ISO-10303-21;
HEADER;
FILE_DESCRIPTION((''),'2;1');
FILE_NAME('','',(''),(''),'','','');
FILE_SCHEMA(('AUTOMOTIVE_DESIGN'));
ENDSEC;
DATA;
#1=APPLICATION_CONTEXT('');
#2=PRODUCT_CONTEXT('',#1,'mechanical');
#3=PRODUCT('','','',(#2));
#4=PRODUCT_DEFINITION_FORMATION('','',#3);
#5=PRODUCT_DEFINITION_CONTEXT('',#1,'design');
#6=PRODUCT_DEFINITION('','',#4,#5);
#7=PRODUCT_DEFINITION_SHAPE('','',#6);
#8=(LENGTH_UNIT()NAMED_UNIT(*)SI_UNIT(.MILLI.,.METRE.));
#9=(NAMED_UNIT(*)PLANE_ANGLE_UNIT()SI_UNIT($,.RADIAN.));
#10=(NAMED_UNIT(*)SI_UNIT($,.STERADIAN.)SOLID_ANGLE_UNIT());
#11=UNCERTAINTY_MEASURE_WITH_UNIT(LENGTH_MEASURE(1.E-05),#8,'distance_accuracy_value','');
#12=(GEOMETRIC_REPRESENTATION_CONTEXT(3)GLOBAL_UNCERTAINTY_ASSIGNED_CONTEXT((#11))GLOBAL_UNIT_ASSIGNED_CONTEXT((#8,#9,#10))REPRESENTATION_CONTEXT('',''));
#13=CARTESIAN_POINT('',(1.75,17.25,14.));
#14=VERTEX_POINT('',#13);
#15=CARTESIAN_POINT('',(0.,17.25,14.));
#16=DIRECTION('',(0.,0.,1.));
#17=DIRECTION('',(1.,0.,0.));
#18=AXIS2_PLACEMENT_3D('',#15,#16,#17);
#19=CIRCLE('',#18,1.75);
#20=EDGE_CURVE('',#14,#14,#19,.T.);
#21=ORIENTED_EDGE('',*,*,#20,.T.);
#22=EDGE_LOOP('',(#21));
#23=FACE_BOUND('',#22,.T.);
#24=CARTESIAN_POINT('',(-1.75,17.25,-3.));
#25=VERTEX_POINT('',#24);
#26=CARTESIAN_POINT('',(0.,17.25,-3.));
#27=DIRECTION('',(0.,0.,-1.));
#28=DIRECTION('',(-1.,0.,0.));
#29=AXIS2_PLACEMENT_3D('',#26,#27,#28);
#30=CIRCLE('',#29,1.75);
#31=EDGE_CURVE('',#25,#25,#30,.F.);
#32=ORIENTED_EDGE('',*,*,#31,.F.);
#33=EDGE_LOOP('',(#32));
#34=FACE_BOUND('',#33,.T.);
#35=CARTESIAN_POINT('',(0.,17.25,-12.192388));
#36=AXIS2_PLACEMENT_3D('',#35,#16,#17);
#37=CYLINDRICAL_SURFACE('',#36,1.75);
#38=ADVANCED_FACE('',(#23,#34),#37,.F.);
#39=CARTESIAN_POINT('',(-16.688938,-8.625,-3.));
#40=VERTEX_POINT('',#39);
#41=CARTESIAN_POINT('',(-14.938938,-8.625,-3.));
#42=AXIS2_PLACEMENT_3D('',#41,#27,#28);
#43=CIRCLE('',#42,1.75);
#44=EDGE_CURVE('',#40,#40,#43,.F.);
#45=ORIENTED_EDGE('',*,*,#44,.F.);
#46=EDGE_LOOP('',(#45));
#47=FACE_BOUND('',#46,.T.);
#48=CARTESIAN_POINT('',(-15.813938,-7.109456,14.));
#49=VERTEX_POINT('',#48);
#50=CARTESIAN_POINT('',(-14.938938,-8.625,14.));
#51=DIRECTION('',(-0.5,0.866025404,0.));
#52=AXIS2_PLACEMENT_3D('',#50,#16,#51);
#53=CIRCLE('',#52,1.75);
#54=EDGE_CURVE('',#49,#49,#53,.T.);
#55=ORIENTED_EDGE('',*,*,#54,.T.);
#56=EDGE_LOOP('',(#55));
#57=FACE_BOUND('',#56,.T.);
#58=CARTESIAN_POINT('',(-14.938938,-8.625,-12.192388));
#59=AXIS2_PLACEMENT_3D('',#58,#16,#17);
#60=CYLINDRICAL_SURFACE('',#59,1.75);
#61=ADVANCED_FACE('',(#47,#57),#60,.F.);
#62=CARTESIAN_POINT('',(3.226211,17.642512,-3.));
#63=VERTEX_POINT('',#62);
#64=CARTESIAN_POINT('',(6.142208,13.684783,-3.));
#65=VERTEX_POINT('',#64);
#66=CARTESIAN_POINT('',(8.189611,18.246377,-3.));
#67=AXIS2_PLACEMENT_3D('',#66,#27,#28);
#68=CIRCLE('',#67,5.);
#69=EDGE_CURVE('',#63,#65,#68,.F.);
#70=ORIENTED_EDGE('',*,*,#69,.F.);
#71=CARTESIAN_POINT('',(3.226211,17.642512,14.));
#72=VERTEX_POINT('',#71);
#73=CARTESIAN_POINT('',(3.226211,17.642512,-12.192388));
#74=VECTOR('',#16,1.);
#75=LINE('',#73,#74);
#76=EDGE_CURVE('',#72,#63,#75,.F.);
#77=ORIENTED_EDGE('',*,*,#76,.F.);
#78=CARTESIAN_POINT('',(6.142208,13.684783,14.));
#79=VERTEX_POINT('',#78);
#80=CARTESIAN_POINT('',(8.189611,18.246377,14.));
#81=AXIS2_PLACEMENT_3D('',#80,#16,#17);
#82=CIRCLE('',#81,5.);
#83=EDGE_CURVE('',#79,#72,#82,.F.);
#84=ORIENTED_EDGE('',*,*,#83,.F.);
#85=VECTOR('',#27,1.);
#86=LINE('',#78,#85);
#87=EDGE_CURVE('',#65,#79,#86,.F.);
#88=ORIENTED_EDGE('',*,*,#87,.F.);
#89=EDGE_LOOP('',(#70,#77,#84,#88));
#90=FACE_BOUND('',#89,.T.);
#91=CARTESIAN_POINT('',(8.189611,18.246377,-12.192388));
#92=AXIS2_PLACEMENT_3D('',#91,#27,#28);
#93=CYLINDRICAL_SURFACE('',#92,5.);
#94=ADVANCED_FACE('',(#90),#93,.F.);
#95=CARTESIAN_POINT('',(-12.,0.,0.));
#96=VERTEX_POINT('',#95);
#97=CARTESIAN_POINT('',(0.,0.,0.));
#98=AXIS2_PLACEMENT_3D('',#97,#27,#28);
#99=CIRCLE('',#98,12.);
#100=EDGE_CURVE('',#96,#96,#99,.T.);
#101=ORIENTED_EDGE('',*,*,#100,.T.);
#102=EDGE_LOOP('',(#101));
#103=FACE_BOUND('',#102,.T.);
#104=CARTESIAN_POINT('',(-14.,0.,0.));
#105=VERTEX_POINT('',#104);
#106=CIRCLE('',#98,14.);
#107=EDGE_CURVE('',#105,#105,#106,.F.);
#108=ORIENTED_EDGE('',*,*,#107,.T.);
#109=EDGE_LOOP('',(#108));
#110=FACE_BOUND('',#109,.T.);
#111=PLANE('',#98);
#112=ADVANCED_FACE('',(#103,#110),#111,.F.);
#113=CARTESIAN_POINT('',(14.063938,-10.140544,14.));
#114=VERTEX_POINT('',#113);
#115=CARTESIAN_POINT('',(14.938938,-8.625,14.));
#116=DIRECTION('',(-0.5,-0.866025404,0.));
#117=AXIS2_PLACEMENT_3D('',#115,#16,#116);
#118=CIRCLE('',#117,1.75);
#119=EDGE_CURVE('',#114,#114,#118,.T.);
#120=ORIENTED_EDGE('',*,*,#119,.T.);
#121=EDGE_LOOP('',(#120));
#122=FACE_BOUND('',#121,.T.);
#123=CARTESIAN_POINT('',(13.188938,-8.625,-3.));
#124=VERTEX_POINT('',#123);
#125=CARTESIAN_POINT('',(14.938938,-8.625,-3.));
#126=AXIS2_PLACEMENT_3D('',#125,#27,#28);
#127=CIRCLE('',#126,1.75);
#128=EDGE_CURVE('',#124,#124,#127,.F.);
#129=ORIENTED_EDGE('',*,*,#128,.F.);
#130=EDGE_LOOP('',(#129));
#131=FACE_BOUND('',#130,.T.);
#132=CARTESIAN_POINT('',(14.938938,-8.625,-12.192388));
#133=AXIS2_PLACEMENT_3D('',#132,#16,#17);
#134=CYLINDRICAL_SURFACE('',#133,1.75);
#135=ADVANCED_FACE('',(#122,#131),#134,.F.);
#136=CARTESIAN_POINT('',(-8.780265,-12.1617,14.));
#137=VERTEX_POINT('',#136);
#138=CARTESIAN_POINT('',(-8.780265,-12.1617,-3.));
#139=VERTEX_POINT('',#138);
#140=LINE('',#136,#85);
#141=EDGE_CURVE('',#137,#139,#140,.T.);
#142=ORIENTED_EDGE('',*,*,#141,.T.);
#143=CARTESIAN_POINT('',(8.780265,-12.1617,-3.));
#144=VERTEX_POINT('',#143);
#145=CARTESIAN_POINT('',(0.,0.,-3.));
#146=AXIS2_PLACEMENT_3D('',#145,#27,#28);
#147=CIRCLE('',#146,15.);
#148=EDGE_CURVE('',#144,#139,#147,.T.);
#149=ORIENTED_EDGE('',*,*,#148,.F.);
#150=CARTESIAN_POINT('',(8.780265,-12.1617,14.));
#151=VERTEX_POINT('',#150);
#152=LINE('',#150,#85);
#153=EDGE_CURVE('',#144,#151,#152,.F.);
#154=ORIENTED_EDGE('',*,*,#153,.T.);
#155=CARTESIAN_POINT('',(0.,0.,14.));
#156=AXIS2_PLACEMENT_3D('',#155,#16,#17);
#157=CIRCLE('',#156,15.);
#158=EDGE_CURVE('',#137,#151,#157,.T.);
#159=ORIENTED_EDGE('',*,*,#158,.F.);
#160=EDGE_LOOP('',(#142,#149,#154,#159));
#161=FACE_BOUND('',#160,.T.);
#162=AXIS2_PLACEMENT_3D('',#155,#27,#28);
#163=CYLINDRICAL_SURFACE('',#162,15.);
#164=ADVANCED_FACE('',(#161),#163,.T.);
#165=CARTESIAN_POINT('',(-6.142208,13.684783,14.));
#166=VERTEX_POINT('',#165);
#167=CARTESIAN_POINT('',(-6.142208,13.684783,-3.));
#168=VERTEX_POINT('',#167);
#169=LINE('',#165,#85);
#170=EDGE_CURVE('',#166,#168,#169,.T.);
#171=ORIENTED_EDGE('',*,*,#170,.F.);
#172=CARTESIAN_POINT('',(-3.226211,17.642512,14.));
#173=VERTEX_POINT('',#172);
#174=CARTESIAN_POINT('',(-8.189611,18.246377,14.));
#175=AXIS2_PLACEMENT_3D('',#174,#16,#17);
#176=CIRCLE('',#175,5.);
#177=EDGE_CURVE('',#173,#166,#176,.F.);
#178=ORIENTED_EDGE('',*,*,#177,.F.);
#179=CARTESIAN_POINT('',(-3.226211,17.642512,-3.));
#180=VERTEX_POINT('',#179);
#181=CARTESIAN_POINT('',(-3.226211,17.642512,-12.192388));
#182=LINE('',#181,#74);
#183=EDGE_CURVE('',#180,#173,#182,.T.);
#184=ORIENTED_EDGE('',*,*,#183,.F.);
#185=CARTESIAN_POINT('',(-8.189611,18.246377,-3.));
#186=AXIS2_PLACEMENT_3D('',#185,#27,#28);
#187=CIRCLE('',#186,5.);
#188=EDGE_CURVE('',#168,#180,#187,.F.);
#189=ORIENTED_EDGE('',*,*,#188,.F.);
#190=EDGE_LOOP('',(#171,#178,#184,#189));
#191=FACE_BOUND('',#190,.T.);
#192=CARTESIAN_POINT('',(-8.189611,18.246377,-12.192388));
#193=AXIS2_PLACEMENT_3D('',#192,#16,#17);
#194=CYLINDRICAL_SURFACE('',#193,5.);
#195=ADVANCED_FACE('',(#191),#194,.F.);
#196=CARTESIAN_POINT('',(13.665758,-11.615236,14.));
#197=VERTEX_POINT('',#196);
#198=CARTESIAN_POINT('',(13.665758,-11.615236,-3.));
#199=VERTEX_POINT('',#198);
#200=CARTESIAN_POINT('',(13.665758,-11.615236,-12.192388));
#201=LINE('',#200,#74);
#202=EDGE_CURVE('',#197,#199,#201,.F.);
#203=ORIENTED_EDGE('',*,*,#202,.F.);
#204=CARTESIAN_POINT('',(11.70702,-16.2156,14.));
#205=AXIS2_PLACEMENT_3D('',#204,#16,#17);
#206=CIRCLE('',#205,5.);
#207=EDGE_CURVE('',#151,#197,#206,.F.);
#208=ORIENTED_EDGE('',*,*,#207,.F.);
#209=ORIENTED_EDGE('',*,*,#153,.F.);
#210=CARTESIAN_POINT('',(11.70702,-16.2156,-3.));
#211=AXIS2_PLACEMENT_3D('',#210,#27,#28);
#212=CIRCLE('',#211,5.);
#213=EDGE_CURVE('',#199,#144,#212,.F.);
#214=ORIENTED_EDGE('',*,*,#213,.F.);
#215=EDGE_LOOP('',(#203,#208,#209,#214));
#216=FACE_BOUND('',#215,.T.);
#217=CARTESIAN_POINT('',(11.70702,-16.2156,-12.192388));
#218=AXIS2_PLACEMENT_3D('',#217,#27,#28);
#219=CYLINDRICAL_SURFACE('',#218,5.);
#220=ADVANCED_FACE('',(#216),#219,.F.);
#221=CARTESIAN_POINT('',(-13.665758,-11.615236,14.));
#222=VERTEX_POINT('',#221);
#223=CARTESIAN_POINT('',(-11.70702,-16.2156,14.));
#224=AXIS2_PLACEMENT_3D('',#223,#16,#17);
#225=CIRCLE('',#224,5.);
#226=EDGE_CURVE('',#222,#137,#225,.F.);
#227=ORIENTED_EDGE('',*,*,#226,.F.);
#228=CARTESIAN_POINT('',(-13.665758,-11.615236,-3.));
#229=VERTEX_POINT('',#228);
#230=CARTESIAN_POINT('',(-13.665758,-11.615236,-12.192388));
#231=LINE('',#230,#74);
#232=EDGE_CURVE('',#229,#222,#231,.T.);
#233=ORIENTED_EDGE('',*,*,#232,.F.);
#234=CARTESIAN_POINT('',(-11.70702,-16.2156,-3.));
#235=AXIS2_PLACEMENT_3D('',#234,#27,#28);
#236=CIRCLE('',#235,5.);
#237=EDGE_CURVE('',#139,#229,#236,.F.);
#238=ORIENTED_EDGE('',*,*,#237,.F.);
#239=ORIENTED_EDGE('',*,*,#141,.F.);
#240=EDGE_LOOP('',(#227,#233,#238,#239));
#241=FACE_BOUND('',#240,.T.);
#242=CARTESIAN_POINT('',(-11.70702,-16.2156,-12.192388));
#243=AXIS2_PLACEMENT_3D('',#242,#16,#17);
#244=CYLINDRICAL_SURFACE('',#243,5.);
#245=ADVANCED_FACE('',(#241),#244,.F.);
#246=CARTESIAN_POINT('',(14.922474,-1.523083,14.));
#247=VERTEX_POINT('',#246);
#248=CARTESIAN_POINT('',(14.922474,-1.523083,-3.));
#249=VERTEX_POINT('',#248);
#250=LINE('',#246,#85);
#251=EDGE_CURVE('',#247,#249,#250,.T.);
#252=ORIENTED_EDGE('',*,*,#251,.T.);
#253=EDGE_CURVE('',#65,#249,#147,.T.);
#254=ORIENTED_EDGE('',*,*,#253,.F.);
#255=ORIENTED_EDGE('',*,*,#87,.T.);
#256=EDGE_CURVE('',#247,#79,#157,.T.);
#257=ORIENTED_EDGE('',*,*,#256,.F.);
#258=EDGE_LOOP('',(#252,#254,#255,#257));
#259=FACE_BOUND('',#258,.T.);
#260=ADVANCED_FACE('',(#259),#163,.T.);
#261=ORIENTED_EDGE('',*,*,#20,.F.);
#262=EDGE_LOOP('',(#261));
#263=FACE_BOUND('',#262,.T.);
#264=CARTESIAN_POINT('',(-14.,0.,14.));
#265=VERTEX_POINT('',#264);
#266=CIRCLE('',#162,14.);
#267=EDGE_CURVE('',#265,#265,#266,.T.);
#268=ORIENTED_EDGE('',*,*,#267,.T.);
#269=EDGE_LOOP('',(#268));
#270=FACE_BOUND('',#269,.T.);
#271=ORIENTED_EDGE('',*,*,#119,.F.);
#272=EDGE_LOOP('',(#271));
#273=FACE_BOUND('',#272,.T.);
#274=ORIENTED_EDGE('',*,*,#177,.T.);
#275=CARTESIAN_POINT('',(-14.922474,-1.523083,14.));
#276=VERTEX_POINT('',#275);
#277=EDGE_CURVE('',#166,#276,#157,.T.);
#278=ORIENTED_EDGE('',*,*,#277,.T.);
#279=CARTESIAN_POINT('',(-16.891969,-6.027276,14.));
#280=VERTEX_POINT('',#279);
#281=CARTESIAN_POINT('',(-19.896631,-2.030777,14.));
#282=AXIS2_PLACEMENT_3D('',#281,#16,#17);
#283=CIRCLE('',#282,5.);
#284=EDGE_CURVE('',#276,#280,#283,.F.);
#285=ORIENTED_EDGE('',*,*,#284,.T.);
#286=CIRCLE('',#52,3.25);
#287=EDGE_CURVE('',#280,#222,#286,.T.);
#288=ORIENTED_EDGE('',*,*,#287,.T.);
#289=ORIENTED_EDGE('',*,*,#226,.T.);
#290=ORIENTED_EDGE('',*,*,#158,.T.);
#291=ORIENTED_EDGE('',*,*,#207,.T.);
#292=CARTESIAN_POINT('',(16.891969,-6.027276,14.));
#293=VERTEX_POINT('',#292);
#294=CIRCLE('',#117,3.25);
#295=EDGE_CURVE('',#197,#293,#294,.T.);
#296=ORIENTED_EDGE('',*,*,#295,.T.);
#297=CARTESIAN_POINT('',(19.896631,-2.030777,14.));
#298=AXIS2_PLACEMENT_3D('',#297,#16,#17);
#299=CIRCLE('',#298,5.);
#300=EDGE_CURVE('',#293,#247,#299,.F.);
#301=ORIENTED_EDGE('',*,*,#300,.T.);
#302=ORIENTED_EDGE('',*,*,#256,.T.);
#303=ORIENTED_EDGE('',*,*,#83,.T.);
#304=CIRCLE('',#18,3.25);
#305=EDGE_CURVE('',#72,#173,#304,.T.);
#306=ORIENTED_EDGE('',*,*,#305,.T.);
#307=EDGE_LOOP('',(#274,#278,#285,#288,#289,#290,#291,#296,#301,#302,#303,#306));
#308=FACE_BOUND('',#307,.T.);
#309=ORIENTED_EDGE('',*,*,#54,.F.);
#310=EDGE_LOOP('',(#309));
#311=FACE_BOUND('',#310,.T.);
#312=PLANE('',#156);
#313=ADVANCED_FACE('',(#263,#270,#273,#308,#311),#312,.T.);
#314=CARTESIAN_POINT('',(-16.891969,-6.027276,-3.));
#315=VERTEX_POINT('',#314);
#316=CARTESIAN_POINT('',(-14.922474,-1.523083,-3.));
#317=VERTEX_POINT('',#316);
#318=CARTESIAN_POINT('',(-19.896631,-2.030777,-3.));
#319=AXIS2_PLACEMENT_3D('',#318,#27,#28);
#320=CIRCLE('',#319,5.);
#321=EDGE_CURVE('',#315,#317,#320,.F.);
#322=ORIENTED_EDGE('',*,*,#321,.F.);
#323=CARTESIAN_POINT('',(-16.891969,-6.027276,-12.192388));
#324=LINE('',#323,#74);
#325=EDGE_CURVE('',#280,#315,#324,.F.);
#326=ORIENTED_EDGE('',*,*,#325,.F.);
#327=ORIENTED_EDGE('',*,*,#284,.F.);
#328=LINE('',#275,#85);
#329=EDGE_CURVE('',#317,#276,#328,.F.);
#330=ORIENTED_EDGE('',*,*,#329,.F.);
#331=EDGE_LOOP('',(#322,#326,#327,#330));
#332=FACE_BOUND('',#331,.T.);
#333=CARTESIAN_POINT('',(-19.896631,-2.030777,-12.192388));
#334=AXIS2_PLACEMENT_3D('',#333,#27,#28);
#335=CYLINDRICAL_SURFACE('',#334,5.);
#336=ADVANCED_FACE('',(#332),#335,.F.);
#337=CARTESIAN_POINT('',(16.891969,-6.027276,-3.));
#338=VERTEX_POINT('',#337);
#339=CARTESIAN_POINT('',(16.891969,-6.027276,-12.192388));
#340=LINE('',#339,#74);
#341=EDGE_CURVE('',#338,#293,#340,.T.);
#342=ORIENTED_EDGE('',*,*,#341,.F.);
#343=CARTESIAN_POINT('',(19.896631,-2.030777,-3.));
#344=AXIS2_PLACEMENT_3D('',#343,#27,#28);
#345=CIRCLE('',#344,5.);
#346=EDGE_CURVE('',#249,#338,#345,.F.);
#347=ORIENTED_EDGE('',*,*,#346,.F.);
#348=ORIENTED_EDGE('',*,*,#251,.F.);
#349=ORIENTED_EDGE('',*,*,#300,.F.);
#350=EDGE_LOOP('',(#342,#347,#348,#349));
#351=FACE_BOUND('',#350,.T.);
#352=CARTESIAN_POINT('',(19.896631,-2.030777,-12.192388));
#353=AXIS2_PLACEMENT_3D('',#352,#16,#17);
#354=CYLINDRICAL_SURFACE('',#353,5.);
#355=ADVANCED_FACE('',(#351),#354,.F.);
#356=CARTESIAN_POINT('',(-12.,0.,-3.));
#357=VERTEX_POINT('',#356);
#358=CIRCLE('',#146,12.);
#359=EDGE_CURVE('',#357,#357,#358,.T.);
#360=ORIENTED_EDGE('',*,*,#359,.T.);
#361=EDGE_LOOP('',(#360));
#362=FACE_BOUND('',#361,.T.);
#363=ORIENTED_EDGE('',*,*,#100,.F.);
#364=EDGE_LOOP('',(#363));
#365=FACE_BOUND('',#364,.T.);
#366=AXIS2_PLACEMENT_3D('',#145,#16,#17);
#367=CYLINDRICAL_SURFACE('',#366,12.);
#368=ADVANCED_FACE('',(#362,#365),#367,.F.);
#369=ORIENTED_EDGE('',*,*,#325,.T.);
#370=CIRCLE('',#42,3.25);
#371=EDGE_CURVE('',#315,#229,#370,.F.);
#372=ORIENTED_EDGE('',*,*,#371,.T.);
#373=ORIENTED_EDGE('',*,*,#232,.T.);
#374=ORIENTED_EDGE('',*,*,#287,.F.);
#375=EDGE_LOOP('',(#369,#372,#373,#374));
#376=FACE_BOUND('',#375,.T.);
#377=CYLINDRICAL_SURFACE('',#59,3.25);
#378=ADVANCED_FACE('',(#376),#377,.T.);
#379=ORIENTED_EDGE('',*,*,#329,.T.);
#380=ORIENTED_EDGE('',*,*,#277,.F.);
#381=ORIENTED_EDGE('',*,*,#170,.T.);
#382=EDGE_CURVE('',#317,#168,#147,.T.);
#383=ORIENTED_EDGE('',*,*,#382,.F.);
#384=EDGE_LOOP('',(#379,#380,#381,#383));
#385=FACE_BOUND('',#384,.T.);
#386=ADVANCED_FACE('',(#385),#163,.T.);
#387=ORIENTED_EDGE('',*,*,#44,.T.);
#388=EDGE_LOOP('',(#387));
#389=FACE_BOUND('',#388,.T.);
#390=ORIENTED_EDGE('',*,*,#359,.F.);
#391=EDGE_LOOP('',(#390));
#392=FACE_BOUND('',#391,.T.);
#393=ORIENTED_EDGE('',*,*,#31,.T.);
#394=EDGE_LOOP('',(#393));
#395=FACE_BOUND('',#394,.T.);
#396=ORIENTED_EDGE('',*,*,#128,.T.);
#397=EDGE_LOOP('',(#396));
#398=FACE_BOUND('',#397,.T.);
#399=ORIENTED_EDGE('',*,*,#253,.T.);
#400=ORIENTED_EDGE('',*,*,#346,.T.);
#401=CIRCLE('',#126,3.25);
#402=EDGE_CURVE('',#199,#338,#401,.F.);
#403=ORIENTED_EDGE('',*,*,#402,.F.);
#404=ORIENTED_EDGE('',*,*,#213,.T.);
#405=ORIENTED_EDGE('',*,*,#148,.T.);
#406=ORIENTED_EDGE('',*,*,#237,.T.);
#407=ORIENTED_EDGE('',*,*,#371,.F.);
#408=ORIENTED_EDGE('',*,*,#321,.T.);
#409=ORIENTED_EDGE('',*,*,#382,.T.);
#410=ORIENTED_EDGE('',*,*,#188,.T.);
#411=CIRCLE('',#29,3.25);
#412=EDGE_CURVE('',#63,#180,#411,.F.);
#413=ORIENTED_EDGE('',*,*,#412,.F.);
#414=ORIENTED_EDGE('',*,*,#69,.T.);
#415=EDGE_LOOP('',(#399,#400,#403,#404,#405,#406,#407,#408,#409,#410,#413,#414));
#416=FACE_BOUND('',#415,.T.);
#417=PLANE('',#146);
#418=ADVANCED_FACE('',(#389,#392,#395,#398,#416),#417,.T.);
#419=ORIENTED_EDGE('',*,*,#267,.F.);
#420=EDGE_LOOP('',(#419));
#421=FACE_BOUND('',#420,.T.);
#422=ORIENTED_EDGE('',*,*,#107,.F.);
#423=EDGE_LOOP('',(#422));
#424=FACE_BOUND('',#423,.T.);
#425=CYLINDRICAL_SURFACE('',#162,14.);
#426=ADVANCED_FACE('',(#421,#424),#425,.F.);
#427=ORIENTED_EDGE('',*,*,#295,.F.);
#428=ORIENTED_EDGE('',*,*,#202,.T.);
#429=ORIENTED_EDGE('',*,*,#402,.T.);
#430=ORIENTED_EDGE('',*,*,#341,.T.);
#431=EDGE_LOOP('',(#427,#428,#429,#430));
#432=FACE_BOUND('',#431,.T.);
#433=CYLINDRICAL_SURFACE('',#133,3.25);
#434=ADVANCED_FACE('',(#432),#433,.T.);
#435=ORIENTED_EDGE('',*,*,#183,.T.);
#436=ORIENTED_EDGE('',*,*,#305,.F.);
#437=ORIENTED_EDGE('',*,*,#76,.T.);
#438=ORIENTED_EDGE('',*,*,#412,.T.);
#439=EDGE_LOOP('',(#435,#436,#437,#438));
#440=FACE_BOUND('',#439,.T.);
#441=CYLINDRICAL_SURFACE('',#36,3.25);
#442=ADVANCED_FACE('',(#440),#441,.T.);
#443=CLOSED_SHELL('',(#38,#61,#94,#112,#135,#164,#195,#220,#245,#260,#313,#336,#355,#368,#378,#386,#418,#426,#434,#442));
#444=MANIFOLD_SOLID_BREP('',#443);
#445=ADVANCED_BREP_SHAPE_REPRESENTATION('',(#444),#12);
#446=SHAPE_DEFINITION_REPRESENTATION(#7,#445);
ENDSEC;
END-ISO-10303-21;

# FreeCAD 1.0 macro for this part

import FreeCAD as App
import Part
import Sketcher
Q = App.Units.Quantity


def edges_at(feature, points):
    """Names of the edges that pass closest to the given points."""
    edges = feature.Shape.Edges
    near = lambda p: min(range(len(edges)), key=lambda i: edges[i].distToShape(Part.Vertex(*p))[0])
    return sorted({f"Edge{near(p) + 1}" for p in points})

doc = App.newDocument("Part")
body = doc.addObject("PartDesign::Body", "Body")

# Sketch on XY plane
sketch1 = body.newObject("Sketcher::SketchObject", "Sketch")
sketch1.AttachmentSupport = (doc.getObject("XY_Plane"), [""])
sketch1.MapMode = "FlatFace"
sketch1.addGeometry(Part.Circle(App.Vector(0, 0, 0), App.Vector(0, 0, 1), 15), False)
sketch1.addConstraint(Sketcher.Constraint("Coincident", 0, 3, -1, 1))
sketch1.addConstraint(Sketcher.Constraint("Diameter", 0, Q("30 mm")))
pad1 = body.newObject("PartDesign::Pad", "Pad")
pad1.Profile = sketch1
pad1.Length = 14

# Sketch on XY plane
sketch2 = body.newObject("Sketcher::SketchObject", "Sketch001")
sketch2.AttachmentSupport = (doc.getObject("XY_Plane"), [""])
sketch2.MapMode = "FlatFace"
sketch2.addGeometry(Part.Circle(App.Vector(0, 0, 0), App.Vector(0, 0, 1), 14), False)
sketch2.addConstraint(Sketcher.Constraint("Coincident", 0, 3, -1, 1))
sketch2.addConstraint(Sketcher.Constraint("Diameter", 0, Q("28 mm")))
pocket1 = body.newObject("PartDesign::Pocket", "Pocket")
pocket1.Profile = sketch2
pocket1.Type = "ThroughAll"
pocket1.Reversed = True

# Sketch on XY plane
sketch3 = body.newObject("Sketcher::SketchObject", "Sketch002")
sketch3.AttachmentSupport = (doc.getObject("XY_Plane"), [""])
sketch3.MapMode = "FlatFace"
sketch3.addGeometry(Part.Circle(App.Vector(0, 0, 0), App.Vector(0, 0, 1), 15), False)
sketch3.addGeometry(Part.Circle(App.Vector(0, 0, 0), App.Vector(0, 0, 1), 12), False)
sketch3.addConstraint(Sketcher.Constraint("Coincident", 0, 3, -1, 1))
sketch3.addConstraint(Sketcher.Constraint("Coincident", 1, 3, -1, 1))
sketch3.addConstraint(Sketcher.Constraint("Diameter", 0, Q("30 mm")))
sketch3.addConstraint(Sketcher.Constraint("Diameter", 1, Q("24 mm")))
pad2 = body.newObject("PartDesign::Pad", "Pad001")
pad2.Profile = sketch3
pad2.Length = 3
pad2.Reversed = True

# Sketch on XY plane
sketch4 = body.newObject("Sketcher::SketchObject", "Sketch003")
sketch4.AttachmentSupport = (doc.getObject("XY_Plane"), [""])
sketch4.MapMode = "FlatFace"
sketch4.AttachmentOffset = App.Placement(App.Vector(0, 0, 14), App.Rotation())
sketch4.addGeometry(Part.Circle(App.Vector(0, 17.25, 0), App.Vector(0, 0, 1), 3.25), False)
sketch4.addGeometry(Part.Circle(App.Vector(0, 17.25, 0), App.Vector(0, 0, 1), 1.75), False)
sketch4.addConstraint(Sketcher.Constraint("Coincident", 1, 3, 0, 3))
sketch4.addConstraint(Sketcher.Constraint("PointOnObject", 0, 3, -2))
sketch4.addConstraint(Sketcher.Constraint("Diameter", 0, Q("6.5 mm")))
sketch4.addConstraint(Sketcher.Constraint("Diameter", 1, Q("3.5 mm")))
sketch4.addConstraint(Sketcher.Constraint("DistanceY", -1, 1, 0, 3, Q("17.25 mm")))
pad3 = body.newObject("PartDesign::Pad", "Pad002")
pad3.Profile = sketch4
pad3.Length = 17
pad3.Reversed = True
doc.recompute()

fillet = body.newObject("PartDesign::Fillet", "Fillet")
fillet.Base = (pad3, edges_at(pad3, [(2.181, 14.841, 7), (-2.181, 14.841, 7)]))
fillet.Radius = 5
doc.recompute()

polarpattern = body.newObject("PartDesign::PolarPattern", "PolarPattern")
polarpattern.Originals = [pad3]
polarpattern.Axis = (doc.getObject("Z_Axis"), [""])
polarpattern.Angle = 360
polarpattern.Occurrences = 3
body.Tip = polarpattern
doc.recompute()

fillet2 = body.newObject("PartDesign::Fillet", "Fillet001")
fillet2.Base = (polarpattern, edges_at(polarpattern, [
    (-13.943, -5.531, 5.5),
    (-11.762, -9.309, 5.5),
    (11.762, -9.309, 5.5),
    (13.943, -5.531, 5.5),
]))
fillet2.Radius = 5

doc.recompute()
